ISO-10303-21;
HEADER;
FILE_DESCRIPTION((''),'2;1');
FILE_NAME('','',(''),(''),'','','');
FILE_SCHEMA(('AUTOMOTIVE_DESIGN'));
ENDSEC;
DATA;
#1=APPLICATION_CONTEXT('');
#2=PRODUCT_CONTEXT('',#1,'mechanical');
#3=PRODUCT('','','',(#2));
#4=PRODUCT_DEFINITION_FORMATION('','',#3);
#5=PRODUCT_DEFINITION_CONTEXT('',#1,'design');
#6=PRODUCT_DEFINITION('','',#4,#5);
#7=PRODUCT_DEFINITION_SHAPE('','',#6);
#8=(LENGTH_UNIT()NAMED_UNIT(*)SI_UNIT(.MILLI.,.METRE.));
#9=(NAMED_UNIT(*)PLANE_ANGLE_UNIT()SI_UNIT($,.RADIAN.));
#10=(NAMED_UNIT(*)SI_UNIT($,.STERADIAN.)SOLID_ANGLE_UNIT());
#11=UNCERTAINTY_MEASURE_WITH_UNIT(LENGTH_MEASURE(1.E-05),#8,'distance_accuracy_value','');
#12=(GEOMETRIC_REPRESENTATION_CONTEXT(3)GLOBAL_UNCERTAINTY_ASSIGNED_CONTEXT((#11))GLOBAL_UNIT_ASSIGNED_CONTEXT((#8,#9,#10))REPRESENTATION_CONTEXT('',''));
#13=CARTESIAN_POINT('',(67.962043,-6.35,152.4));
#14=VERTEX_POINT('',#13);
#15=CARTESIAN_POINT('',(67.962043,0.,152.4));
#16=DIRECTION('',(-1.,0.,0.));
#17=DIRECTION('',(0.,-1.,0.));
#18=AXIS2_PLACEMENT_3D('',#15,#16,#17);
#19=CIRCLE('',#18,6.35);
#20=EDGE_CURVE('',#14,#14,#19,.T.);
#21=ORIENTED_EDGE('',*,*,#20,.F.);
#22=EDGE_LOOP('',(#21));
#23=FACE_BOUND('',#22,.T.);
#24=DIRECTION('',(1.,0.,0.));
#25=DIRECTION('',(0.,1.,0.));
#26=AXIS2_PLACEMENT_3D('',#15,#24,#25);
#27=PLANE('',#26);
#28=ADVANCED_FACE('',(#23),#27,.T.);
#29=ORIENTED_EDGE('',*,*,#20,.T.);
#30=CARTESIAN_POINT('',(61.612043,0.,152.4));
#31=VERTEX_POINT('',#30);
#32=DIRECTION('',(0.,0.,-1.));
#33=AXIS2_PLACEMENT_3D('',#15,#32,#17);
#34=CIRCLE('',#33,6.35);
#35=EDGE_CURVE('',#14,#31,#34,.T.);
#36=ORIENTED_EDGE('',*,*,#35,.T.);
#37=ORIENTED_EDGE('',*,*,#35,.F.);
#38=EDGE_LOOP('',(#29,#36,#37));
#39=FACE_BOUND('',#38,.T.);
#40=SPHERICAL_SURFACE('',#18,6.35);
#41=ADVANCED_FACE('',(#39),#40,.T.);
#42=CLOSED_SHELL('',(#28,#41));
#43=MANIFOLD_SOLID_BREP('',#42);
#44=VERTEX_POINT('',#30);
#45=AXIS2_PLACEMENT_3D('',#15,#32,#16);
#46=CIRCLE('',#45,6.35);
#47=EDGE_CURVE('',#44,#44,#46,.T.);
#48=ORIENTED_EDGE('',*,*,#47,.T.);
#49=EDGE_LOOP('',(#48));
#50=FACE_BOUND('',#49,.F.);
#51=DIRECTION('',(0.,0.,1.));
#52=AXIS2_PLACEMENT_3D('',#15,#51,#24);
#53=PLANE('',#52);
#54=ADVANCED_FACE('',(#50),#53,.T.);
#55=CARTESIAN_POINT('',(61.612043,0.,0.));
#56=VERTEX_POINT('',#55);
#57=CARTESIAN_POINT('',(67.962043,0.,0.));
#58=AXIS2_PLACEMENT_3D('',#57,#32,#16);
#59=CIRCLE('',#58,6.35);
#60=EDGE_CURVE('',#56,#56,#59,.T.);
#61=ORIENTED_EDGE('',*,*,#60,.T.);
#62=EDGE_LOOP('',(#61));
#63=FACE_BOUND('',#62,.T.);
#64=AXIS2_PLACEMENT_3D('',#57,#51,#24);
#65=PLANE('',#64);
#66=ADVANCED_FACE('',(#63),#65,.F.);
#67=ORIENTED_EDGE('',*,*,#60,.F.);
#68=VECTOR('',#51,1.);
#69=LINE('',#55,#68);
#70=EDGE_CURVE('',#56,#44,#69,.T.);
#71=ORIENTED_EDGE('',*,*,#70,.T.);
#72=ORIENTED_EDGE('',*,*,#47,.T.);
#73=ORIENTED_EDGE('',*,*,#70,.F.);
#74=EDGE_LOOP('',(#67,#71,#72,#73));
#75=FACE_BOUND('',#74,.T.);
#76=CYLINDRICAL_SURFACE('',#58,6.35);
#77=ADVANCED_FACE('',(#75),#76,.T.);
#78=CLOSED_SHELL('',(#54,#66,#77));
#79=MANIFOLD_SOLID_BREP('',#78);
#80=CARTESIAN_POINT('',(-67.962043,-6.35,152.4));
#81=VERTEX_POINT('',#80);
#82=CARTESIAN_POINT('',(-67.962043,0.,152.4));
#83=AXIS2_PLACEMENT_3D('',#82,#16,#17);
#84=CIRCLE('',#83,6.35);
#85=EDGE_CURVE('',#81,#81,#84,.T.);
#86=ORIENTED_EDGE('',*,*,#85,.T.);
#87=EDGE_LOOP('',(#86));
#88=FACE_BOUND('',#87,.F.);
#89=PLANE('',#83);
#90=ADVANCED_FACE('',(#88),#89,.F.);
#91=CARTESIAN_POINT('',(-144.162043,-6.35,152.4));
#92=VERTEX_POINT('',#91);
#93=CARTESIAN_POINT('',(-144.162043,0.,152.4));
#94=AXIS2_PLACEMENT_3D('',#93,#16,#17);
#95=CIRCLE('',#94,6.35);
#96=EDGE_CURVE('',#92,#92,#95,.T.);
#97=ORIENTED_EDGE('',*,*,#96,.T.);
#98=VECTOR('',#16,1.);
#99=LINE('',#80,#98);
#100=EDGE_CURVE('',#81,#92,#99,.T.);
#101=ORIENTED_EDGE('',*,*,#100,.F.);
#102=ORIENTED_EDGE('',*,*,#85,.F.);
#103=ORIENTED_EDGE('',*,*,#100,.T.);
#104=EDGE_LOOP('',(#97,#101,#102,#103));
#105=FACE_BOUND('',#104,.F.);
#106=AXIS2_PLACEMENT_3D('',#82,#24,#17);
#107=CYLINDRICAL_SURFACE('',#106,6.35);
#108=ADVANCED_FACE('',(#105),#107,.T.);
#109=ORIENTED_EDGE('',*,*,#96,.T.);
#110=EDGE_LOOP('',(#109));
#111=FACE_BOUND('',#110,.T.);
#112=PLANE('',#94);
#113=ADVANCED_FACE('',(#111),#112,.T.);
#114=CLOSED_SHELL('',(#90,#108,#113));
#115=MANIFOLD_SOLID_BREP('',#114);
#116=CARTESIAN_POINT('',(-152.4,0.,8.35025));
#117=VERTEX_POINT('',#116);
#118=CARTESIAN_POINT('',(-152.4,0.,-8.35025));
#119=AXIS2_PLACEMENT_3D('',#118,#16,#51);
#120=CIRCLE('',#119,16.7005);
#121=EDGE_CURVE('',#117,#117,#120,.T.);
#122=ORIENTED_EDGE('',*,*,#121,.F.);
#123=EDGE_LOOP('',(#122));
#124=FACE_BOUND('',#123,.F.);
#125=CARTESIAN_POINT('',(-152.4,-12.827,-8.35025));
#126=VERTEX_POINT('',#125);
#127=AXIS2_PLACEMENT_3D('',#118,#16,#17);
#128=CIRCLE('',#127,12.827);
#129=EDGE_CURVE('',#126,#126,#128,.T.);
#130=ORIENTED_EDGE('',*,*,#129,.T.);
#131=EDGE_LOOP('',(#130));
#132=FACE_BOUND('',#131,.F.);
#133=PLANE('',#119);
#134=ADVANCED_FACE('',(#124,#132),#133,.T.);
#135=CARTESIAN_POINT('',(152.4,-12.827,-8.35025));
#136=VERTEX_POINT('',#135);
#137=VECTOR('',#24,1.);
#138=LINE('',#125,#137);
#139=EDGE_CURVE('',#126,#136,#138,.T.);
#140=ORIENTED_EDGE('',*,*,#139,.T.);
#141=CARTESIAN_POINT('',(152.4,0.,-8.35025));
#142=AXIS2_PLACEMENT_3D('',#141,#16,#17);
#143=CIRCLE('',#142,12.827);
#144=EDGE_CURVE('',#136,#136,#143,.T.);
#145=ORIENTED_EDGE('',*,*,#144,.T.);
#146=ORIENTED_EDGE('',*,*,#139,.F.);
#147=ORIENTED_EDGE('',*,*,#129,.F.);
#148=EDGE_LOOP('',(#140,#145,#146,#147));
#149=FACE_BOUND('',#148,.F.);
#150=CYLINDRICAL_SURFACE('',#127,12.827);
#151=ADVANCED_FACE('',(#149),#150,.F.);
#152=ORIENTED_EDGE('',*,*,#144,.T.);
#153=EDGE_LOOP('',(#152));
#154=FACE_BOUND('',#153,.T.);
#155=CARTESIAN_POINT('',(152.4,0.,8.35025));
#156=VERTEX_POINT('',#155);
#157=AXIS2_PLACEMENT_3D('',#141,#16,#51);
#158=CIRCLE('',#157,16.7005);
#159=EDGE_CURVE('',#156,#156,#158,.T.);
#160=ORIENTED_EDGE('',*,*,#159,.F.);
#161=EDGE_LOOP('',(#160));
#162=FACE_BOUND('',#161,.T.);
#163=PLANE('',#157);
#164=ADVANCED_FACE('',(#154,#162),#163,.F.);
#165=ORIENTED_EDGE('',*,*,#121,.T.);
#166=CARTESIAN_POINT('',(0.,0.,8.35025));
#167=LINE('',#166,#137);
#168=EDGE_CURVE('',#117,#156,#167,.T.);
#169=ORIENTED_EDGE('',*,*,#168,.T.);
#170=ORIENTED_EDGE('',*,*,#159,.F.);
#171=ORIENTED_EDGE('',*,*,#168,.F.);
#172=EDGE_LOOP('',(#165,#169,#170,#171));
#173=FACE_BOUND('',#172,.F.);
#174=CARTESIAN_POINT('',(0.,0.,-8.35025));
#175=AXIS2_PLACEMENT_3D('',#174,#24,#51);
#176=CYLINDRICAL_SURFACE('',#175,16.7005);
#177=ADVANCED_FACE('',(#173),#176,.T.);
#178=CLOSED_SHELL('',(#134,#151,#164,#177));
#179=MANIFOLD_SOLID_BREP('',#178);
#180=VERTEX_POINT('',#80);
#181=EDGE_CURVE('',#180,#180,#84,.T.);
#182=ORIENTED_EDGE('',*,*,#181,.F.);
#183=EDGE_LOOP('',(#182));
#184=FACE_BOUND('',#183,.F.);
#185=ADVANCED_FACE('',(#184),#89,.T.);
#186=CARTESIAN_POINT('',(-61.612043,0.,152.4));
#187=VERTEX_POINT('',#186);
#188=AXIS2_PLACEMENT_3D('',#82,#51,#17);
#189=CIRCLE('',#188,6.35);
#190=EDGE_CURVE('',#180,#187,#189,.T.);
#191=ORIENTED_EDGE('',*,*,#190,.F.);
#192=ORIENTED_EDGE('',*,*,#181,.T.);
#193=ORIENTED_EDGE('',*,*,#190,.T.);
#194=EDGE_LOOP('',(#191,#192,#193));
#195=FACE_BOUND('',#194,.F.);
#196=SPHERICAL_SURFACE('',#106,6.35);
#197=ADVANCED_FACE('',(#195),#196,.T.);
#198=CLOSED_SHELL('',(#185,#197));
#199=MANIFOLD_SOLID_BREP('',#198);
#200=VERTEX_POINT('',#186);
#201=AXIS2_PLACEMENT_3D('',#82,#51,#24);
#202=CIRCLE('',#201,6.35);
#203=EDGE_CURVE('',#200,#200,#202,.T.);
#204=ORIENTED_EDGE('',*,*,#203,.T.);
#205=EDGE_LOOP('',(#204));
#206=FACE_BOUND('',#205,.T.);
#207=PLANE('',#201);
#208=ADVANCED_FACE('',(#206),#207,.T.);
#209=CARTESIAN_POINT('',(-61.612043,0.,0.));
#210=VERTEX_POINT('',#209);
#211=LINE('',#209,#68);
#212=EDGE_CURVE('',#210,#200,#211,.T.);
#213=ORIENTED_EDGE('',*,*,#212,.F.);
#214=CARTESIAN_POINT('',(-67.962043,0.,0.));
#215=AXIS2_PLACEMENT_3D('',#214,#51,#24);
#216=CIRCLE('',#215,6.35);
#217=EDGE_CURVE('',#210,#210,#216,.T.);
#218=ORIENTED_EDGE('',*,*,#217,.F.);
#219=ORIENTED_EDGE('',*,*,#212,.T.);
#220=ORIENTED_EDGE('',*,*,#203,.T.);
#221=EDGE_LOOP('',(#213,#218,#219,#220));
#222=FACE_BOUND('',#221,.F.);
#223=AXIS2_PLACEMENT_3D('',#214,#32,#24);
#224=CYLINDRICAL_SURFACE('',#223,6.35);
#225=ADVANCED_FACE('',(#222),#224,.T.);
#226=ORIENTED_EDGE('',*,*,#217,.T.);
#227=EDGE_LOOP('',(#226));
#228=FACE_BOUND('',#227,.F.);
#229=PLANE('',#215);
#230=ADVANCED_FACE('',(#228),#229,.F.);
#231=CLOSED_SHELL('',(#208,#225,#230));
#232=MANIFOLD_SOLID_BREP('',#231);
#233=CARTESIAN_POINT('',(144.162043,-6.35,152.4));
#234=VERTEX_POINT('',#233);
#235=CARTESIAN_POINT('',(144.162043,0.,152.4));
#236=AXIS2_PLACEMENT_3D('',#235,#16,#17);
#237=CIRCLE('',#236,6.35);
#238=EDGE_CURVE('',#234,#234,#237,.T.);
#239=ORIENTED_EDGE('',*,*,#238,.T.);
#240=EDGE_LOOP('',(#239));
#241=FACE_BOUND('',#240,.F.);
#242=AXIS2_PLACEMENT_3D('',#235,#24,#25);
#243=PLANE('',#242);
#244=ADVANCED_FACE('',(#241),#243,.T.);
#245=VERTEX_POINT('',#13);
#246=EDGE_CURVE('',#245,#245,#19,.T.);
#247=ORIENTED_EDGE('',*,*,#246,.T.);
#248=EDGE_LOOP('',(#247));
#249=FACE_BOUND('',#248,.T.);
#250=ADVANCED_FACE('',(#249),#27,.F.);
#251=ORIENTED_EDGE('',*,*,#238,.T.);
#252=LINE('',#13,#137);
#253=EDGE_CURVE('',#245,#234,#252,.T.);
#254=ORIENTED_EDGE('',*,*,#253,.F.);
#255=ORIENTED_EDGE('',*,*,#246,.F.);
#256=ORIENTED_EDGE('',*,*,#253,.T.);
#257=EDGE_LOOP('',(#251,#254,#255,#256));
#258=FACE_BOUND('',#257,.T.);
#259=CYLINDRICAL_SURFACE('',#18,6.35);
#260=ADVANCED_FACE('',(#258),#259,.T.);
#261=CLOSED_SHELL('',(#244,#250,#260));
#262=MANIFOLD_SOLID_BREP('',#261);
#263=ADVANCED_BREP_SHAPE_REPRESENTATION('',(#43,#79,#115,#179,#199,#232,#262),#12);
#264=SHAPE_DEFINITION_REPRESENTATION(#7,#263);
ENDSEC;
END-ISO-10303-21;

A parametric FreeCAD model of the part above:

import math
import FreeCAD as App
import Part
import Sketcher

V = App.Vector
Q = App.Units.Quantity


def add_polygon(sketch, points):
    """Adds a closed chain of lines whose ends are joined by coincident constraints."""
    first, n = sketch.GeometryCount, len(points)
    for a, b in zip(points, points[1:] + points[:1]):
        sketch.addGeometry(Part.LineSegment(App.Vector(*a, 0), App.Vector(*b, 0)), False)
    for i in range(n):
        sketch.addConstraint(Sketcher.Constraint("Coincident", first + i, 2, first + (i + 1) % n, 1))

doc = App.newDocument("Part")
body = doc.addObject("PartDesign::Body", "Body")

sketch1 = body.newObject("Sketcher::SketchObject", "Sketch")
sketch1.AttachmentSupport = (doc.getObject("XZ_Plane"), [""])
sketch1.MapMode = "FlatFace"
add_polygon(sketch1, [(-152, 8), (-152, -8), (152, -8), (152, 8)])
sketch1.addGeometry(Part.LineSegment(V(152, -8, 0), V(-152, -8, 0)), True)
sketch1.addConstraint([
    Sketcher.Constraint("Vertical", 0),
    Sketcher.Constraint("Horizontal", 1),
    Sketcher.Constraint("Vertical", 2),
    Sketcher.Constraint("Horizontal", 3),
    Sketcher.Constraint("Horizontal", 4),
    Sketcher.Constraint("Coincident", 4, 1, 1, 2),
    Sketcher.Constraint("Symmetric", 0, 2, 2, 2, -1, 1),
    Sketcher.Constraint("Vertical", 3, 2, 4, 2),
    Sketcher.Constraint("DistanceX", 1, 1, 1, 2, Q("12 in")),
    Sketcher.Constraint("DistanceY", 0, 2, 0, 1, Q("0.6575 in")),
])
revolution = body.newObject("PartDesign::Revolution", "Revolution")
revolution.Profile = sketch1
revolution.ReferenceAxis = (sketch1, ["Axis0"])
revolution.Angle = 360

sketch2 = body.newObject("Sketcher::SketchObject", "Sketch001")
sketch2.AttachmentSupport = (doc.getObject("YZ_Plane"), [""])
sketch2.MapMode = "FlatFace"
sketch2.AttachmentOffset = App.Placement(V(0, 0, -6 * 25.4), App.Rotation())
sketch2.addGeometry(Part.Circle(V(0, -8, 0), V(0, 0, 1), 13), False)
sketch2.addConstraint([
    Sketcher.Constraint("PointOnObject", 0, 3, -2),
    Sketcher.Constraint("Diameter", 0, Q("1.01 in")),
    Sketcher.Constraint("DistanceY", 0, 3, -1, 1, 8.35025),
])
pocket1 = body.newObject("PartDesign::Pocket", "Pocket")
pocket1.Profile = sketch2
pocket1.Type = "ThroughAll"
pocket1.Reversed = True
body2 = doc.addObject("PartDesign::Body", "Body001")

sketch3 = body2.newObject("Sketcher::SketchObject", "Sketch002")
sketch3.AttachmentSupport = (doc.getObject("XY_Plane001"), [""])
sketch3.MapMode = "FlatFace"
sketch3.addGeometry(Part.Circle(V(-68, 0, 0), V(0, 0, 1), 6), False)
sketch3.addConstraint([
    Sketcher.Constraint("PointOnObject", 0, 3, -1),
    Sketcher.Constraint("Diameter", 0, Q("0.5 in")),
    Sketcher.Constraint("DistanceX", 0, 3, -1, 1, 67.962043),
])
pad1 = body2.newObject("PartDesign::Pad", "Pad")
pad1.Profile = sketch3
pad1.Length = Q("6 in")
body3 = doc.addObject("PartDesign::Body", "Body002")

sketch4 = body3.newObject("Sketcher::SketchObject", "Sketch003")
sketch4.AttachmentSupport = (doc.getObject("XY_Plane002"), [""])
sketch4.MapMode = "FlatFace"
sketch4.AttachmentOffset = App.Placement(V(0, 0, 6 * 25.4), App.Rotation())
sketch4.addGeometry([
    Part.ArcOfCircle(Part.Circle(V(-68, 0, 0), V(0, 0, 1), 6), math.radians(-90), math.radians(0)),
    Part.LineSegment(V(-62, 0, 0), V(-68, 0, 0)),
    Part.LineSegment(V(-68, 0, 0), V(-68, -6, 0)),
], False)
sketch4.addConstraint([
    Sketcher.Constraint("Coincident", 0, 2, 1, 1),
    Sketcher.Constraint("Coincident", 1, 2, 2, 1),
    Sketcher.Constraint("Coincident", 2, 2, 0, 1),
    Sketcher.Constraint("Horizontal", 1),
    Sketcher.Constraint("Vertical", 2),
    Sketcher.Constraint("Coincident", 1, 2, 0, 3),
    Sketcher.Constraint("PointOnObject", 0, 3, -1),
    Sketcher.Constraint("Radius", 0, Q("0.25 in")),
    Sketcher.Constraint("DistanceX", 0, 3, -1, 1, 67.962043),
])
revolution2 = body3.newObject("PartDesign::Revolution", "Revolution001")
revolution2.Profile = sketch4
revolution2.ReferenceAxis = (sketch4, ["H_Axis"])
revolution2.Angle = 360
body4 = doc.addObject("PartDesign::Body", "Body003")

sketch5 = body4.newObject("Sketcher::SketchObject", "Sketch004")
sketch5.AttachmentSupport = (doc.getObject("YZ_Plane003"), [""])
sketch5.MapMode = "FlatFace"
sketch5.AttachmentOffset = App.Placement(V(0, 0, -67.962043), App.Rotation())
sketch5.addGeometry(Part.Circle(V(0, 152, 0), V(0, 0, 1), 6), False)
sketch5.addConstraint([
    Sketcher.Constraint("PointOnObject", 0, 3, -2),
    Sketcher.Constraint("Diameter", 0, Q("0.5 in")),
    Sketcher.Constraint("DistanceY", -1, 1, 0, 3, Q("6 in")),
])
pad2 = body4.newObject("PartDesign::Pad", "Pad001")
pad2.Profile = sketch5
pad2.Length = Q("3 in")
pad2.Reversed = True
body5 = doc.addObject("PartDesign::Body", "Body004")
doc.recompute()

mirroring = doc.addObject("Part::Mirroring", "Mirroring")
mirroring.Source = body4
mirroring.Base = V(0, 0, 0)
mirroring.Normal = V(1, 0, 0)
body5.BaseFeature = mirroring
doc.recompute()
body6 = doc.addObject("PartDesign::Body", "Body005")
doc.recompute()

mirroring2 = doc.addObject("Part::Mirroring", "Mirroring001")
mirroring2.Source = body2
mirroring2.Base = V(0, 0, 0)
mirroring2.Normal = V(1, 0, 0)
body6.BaseFeature = mirroring2
doc.recompute()
body7 = doc.addObject("PartDesign::Body", "Body006")
doc.recompute()

mirroring3 = doc.addObject("Part::Mirroring", "Mirroring002")
mirroring3.Source = body3
mirroring3.Base = V(0, 0, 0)
mirroring3.Normal = V(1, 0, 0)
body7.BaseFeature = mirroring3
doc.recompute()
mirroring.Visibility = False
mirroring2.Visibility = False
mirroring3.Visibility = False

doc.recompute()
